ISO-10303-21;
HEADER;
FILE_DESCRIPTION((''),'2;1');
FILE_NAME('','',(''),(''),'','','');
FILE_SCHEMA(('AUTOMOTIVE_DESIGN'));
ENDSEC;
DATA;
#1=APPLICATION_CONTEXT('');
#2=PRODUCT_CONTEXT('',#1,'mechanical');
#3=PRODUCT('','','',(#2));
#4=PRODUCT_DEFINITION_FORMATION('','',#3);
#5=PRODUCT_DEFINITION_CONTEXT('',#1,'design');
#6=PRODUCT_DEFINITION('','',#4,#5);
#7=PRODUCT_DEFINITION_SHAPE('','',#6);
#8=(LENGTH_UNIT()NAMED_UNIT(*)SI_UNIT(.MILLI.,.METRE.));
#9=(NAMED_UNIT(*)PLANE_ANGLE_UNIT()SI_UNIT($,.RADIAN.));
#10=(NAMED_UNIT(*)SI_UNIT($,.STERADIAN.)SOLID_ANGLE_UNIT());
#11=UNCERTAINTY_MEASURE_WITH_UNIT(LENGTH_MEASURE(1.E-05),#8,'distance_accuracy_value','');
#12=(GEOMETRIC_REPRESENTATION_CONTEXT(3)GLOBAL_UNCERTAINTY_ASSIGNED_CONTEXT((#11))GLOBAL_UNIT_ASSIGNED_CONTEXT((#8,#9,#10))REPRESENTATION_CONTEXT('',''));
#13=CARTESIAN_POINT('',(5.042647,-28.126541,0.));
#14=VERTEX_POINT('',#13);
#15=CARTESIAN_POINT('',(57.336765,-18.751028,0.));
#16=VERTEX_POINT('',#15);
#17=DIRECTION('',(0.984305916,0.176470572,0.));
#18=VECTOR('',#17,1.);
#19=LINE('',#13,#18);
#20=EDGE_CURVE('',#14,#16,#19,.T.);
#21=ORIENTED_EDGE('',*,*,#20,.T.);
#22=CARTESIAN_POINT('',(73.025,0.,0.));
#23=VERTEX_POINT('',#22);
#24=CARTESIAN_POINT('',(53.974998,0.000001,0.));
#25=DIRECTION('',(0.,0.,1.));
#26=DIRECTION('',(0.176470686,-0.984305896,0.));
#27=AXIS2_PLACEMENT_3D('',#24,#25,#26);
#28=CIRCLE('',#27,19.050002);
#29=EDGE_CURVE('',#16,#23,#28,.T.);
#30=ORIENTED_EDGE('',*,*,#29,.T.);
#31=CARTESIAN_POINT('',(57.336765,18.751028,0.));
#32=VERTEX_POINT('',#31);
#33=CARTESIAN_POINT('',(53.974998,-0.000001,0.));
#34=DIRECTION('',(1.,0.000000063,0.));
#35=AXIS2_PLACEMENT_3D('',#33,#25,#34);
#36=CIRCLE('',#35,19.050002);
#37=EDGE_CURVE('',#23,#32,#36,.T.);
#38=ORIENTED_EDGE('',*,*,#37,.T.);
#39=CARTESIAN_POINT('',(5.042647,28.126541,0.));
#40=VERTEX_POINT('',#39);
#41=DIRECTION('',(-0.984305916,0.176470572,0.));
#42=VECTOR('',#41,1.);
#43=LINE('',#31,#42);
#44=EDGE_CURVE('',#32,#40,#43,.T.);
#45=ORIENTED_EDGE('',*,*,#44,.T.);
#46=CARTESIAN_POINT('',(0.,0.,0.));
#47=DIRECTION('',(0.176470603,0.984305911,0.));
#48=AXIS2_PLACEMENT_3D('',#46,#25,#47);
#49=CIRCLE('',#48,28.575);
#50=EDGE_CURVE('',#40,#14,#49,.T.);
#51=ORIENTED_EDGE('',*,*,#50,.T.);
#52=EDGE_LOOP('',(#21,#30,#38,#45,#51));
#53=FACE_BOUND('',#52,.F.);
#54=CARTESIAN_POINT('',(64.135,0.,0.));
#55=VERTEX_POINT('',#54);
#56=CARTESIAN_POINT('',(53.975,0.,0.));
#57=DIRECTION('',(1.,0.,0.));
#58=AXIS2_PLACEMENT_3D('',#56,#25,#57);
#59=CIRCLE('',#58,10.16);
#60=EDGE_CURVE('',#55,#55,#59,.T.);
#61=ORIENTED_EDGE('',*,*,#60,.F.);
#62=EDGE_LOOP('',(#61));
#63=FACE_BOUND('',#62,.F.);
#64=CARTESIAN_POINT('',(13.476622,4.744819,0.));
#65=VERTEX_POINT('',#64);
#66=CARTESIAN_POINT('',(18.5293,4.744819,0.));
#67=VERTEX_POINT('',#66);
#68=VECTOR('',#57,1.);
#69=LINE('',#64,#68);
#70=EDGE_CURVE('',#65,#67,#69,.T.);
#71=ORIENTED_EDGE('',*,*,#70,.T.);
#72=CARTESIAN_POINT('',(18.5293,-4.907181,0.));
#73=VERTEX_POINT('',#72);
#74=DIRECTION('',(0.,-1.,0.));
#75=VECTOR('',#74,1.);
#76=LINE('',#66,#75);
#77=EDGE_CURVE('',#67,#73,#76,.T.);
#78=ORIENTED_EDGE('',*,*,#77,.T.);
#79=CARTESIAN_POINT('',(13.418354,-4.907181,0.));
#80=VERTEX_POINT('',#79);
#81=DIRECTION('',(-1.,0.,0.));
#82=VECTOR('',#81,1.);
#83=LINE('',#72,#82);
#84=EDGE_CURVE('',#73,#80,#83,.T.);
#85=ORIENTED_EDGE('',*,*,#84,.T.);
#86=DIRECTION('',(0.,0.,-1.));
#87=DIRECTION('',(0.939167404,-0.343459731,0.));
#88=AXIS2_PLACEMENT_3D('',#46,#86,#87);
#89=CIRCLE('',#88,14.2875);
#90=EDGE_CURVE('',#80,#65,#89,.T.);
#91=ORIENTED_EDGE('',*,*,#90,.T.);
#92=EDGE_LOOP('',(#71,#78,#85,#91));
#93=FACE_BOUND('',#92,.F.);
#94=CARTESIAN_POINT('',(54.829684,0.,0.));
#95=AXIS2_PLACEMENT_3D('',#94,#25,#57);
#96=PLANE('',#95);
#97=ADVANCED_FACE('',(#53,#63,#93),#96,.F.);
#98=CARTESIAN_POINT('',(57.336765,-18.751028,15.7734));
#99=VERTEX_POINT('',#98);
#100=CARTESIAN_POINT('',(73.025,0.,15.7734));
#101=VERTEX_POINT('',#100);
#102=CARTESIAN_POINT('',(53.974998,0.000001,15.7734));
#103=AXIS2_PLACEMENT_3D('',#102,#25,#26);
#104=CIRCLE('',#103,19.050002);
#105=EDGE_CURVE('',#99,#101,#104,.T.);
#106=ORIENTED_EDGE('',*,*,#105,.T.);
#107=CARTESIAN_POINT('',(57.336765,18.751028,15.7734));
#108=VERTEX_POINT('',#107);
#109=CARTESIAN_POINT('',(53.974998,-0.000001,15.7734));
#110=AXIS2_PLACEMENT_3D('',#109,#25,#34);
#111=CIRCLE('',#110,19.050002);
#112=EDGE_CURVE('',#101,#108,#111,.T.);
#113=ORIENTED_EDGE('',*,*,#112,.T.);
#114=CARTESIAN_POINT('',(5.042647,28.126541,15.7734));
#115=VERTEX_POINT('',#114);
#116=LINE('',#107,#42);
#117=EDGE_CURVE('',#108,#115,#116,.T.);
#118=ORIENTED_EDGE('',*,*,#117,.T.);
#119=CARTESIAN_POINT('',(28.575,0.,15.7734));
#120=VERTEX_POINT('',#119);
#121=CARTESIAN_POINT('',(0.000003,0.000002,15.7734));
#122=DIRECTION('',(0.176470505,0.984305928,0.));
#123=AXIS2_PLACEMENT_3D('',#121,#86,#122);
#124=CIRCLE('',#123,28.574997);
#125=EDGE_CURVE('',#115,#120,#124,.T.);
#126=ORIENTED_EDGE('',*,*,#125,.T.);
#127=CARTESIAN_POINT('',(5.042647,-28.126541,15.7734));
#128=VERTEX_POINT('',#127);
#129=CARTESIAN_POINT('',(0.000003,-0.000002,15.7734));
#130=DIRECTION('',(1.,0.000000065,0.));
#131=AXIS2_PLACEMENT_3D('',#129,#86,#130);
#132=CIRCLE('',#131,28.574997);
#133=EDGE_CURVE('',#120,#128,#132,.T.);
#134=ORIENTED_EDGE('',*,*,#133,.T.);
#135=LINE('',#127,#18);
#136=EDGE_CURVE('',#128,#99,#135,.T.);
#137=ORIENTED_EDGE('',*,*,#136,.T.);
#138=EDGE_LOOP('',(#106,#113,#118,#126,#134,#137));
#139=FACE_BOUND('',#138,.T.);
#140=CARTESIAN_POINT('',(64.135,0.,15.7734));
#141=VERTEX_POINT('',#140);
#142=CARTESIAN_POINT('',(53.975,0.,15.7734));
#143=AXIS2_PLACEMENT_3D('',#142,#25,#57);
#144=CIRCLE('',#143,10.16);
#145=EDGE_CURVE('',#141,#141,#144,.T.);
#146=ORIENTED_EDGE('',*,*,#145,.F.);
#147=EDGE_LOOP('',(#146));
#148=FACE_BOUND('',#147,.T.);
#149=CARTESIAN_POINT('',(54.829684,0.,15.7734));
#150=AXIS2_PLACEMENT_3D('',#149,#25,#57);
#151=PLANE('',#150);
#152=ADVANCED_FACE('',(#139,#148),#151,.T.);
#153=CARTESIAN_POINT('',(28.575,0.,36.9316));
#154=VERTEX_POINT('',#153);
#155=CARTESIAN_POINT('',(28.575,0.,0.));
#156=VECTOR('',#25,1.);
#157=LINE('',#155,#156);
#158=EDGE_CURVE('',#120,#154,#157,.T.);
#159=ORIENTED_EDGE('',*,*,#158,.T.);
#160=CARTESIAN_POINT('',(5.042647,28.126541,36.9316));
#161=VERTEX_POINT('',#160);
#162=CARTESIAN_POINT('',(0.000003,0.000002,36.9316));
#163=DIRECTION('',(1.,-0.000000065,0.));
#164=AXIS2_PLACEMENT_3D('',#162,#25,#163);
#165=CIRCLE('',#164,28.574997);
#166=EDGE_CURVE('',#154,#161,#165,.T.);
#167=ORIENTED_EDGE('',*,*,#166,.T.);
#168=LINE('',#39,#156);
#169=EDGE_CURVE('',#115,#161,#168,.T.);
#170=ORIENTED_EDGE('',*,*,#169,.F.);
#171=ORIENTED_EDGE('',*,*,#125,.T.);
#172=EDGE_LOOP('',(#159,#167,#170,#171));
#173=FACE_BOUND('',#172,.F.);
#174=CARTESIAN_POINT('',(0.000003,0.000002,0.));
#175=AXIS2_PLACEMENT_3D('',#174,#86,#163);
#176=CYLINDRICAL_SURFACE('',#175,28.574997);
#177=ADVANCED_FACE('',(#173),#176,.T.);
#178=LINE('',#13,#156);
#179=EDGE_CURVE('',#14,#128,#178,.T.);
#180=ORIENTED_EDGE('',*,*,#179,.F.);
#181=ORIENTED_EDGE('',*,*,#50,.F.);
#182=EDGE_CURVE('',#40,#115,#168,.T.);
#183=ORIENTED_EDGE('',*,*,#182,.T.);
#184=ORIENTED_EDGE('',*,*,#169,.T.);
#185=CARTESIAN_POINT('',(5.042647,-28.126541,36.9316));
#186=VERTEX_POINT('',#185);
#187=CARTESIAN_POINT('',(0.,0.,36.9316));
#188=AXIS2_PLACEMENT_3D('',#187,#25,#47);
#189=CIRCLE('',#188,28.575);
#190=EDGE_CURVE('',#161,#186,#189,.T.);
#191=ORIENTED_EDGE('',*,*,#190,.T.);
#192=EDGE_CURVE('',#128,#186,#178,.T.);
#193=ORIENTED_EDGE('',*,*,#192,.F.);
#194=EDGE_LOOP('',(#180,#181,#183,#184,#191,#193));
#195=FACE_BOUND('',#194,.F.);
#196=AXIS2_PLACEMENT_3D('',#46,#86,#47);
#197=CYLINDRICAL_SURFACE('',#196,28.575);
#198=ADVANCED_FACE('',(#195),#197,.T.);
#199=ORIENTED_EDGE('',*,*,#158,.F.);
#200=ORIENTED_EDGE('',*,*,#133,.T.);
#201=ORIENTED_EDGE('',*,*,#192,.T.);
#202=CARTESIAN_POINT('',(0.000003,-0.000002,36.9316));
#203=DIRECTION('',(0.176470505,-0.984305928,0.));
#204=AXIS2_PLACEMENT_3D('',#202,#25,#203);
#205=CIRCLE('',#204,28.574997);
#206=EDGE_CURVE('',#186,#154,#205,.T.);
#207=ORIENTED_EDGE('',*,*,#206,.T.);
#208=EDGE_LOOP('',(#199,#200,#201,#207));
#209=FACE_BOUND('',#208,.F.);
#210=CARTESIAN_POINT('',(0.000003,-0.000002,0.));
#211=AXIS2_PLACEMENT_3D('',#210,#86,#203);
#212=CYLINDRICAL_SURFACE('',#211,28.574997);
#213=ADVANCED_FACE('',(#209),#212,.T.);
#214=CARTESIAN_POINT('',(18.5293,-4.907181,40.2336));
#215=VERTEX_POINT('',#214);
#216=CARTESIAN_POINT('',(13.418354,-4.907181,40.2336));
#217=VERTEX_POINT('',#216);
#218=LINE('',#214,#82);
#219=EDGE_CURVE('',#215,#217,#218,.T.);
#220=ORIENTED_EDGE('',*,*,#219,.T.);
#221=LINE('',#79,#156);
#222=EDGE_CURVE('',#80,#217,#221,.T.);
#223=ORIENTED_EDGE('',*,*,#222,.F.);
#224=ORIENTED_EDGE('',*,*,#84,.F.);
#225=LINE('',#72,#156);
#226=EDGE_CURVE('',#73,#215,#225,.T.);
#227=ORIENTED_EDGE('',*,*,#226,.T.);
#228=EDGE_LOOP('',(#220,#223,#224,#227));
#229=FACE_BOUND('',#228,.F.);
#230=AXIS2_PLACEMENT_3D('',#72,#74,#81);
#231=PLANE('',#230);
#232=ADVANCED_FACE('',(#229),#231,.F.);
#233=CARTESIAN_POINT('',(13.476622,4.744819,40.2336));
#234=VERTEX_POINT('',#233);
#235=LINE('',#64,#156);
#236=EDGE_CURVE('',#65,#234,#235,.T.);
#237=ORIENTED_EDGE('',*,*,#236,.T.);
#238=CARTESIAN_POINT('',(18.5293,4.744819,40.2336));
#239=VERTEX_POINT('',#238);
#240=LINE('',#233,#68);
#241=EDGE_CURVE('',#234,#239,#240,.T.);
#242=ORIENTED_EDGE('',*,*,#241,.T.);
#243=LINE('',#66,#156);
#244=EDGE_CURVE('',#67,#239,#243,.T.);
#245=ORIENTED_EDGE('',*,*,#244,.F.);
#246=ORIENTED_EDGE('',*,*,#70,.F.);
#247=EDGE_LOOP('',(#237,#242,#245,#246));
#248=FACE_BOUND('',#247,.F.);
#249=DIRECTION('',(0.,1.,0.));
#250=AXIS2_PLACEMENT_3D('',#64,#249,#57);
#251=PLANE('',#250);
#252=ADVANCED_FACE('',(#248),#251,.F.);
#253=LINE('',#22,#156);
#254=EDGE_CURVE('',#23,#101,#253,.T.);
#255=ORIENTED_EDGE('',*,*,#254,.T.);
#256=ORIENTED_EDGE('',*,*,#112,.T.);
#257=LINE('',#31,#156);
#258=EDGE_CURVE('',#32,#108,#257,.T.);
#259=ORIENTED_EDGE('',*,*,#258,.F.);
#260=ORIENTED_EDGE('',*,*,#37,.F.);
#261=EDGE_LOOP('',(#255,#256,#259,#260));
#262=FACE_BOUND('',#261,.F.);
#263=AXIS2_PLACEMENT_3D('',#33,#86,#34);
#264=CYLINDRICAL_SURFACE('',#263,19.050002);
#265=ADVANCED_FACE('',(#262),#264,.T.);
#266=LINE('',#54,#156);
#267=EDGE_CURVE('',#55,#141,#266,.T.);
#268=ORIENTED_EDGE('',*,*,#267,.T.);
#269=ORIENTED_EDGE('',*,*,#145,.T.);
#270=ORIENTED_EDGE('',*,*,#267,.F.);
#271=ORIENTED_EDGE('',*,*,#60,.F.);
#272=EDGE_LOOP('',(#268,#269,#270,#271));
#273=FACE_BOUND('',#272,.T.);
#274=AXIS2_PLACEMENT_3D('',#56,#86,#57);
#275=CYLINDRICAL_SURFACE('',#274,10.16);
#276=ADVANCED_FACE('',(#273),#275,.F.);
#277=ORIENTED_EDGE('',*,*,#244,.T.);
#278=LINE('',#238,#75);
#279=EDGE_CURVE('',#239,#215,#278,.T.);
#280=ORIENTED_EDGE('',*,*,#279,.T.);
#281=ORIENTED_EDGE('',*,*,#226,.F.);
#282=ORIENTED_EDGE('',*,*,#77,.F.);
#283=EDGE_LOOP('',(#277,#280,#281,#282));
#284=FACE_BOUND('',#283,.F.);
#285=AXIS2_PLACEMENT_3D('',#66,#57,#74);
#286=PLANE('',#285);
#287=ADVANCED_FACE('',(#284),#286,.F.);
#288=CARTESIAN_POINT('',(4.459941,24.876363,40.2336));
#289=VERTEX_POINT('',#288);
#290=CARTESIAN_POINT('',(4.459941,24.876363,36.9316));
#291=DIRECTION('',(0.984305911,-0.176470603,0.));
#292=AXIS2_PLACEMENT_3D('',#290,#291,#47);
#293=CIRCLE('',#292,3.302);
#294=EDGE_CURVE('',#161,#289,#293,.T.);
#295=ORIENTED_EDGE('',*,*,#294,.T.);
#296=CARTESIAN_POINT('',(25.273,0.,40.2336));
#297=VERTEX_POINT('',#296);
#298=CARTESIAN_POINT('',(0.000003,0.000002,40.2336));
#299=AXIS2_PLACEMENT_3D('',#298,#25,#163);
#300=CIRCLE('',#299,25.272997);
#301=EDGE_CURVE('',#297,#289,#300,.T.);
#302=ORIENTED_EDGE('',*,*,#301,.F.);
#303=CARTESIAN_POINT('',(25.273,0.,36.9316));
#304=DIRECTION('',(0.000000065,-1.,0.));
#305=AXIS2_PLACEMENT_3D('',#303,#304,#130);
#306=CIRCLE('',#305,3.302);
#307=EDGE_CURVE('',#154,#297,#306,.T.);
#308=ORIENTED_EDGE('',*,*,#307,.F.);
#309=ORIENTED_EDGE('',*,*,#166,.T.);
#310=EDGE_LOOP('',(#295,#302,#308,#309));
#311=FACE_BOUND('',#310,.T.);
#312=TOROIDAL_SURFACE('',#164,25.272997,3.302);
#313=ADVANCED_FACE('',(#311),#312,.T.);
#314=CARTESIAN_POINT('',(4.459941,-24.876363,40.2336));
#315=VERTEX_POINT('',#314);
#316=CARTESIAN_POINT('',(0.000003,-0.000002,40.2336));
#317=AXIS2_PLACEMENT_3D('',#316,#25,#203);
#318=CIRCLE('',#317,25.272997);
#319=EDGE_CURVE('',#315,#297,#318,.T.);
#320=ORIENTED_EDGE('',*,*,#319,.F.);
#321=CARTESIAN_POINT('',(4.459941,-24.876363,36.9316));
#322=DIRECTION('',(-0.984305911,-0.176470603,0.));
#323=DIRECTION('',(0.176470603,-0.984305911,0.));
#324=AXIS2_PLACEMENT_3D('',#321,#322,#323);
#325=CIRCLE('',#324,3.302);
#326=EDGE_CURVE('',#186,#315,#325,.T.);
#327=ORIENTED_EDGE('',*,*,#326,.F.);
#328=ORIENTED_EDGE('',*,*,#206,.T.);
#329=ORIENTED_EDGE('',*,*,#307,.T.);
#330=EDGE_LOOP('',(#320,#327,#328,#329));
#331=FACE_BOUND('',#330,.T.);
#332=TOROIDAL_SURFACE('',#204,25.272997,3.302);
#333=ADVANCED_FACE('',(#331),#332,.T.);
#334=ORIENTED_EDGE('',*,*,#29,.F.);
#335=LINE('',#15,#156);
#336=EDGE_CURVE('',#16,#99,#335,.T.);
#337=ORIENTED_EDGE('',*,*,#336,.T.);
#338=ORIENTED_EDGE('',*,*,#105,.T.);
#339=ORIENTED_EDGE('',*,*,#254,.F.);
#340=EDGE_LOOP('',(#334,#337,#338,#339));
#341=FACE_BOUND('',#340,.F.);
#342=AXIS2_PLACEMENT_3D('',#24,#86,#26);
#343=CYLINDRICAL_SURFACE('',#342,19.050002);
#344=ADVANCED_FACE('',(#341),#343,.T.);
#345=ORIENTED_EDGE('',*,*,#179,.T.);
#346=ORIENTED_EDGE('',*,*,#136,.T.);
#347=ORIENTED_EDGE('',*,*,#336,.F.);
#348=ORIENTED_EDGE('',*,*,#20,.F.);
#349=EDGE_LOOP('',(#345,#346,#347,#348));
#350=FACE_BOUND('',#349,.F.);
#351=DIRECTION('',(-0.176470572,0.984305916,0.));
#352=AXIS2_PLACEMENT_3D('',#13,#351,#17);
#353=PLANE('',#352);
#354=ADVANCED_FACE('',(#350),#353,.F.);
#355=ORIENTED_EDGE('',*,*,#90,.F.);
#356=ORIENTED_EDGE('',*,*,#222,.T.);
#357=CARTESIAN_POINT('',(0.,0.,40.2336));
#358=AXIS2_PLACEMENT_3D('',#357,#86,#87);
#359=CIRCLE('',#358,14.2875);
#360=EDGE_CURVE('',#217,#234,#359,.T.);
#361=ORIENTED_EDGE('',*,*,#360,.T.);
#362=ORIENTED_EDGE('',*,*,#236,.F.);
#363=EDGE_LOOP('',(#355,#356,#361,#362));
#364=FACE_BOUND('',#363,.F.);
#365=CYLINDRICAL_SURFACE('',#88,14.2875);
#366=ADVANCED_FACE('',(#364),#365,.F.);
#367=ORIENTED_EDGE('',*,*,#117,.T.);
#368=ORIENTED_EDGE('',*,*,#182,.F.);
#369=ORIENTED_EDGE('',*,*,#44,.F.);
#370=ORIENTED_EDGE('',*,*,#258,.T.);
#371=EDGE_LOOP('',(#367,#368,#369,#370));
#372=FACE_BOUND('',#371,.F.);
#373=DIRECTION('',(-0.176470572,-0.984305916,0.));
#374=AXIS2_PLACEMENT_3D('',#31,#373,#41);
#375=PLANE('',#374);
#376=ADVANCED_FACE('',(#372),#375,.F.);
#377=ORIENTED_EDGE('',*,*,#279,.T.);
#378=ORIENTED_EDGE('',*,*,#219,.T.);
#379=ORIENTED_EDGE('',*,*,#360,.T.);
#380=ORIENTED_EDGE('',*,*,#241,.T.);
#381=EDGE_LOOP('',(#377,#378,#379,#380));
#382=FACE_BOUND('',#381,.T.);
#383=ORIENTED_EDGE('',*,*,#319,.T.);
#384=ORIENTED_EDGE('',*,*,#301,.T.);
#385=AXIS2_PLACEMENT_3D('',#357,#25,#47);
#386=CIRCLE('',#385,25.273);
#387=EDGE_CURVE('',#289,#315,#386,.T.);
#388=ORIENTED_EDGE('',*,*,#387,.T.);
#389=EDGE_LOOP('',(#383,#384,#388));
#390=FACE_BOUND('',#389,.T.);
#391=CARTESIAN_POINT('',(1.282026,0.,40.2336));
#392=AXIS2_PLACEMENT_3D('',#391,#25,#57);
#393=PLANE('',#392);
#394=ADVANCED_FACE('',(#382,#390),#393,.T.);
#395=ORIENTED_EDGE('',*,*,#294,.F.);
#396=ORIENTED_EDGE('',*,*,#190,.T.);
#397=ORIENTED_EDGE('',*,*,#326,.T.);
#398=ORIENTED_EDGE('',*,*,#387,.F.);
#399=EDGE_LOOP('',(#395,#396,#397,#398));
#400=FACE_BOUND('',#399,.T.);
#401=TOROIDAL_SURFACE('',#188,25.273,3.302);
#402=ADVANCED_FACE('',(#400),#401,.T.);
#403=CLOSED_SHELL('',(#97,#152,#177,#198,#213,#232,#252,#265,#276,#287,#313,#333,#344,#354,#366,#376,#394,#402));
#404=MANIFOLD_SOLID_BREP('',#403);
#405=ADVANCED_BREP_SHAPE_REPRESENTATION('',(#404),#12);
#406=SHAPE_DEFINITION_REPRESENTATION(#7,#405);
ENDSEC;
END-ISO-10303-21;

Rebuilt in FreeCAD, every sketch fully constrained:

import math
import FreeCAD as App
import Part
import Sketcher

V = App.Vector
Q = App.Units.Quantity


def edges_at(feature, points):
    """Names of the edges that pass closest to the given points."""
    edges = feature.Shape.Edges
    near = lambda p: min(range(len(edges)), key=lambda i: edges[i].distToShape(Part.Vertex(*p))[0])
    return sorted({f"Edge{near(p) + 1}" for p in points})

doc = App.newDocument("Part")
body = doc.addObject("PartDesign::Body", "Body")

# Sketch on XY plane
sketch1 = body.newObject("Sketcher::SketchObject", "Sketch")
sketch1.AttachmentSupport = (doc.getObject("XY_Plane"), [""])
sketch1.MapMode = "FlatFace"
sketch1.addGeometry(Part.ArcOfCircle(Part.Circle(V(0.000003, -0.000002, 0), V(0, 0, 1), 28.574997), math.radians(-79.835756), math.radians(0.000004)), False)
sketch1.addGeometry(Part.ArcOfCircle(Part.Circle(V(0.000003, 0.000002, 0), V(0, 0, 1), 28.574997), math.radians(-0.000004), math.radians(79.835756)), False)
sketch1.addGeometry(Part.ArcOfCircle(Part.Circle(V(0, 0, 0), V(0, 0, 1), 28.575), math.radians(79.835751), math.radians(280.164249)), False)
sketch1.addGeometry(Part.LineSegment(V(18.5293, -4.907181, 0), V(13.418354, -4.907181, 0)), False)
sketch1.addGeometry(Part.ArcOfCircle(Part.Circle(V(0, 0, 0), V(0, 0, 1), 14.2875), math.radians(19.396033), math.radians(339.9122)), False)
sketch1.addGeometry(Part.LineSegment(V(13.476622, 4.744819, 0), V(18.5293, 4.744819, 0)), False)
sketch1.addGeometry(Part.LineSegment(V(18.5293, 4.744819, 0), V(18.5293, -4.907181, 0)), False)
sketch1.addConstraint(Sketcher.Constraint("Tangent", 0, 2, 1, 1))
sketch1.addConstraint(Sketcher.Constraint("Tangent", 1, 2, 2, 1))
sketch1.addConstraint(Sketcher.Constraint("Tangent", 2, 2, 0, 1))
sketch1.addConstraint(Sketcher.Constraint("Coincident", 3, 2, 4, 2))
sketch1.addConstraint(Sketcher.Constraint("Coincident", 4, 1, 5, 1))
sketch1.addConstraint(Sketcher.Constraint("Coincident", 5, 2, 6, 1))
sketch1.addConstraint(Sketcher.Constraint("Coincident", 6, 2, 3, 1))
sketch1.addConstraint(Sketcher.Constraint("Horizontal", 3))
sketch1.addConstraint(Sketcher.Constraint("Horizontal", 5))
sketch1.addConstraint(Sketcher.Constraint("Vertical", 6))
sketch1.addConstraint(Sketcher.Constraint("Coincident", 0, 3, -1, 1))
sketch1.addConstraint(Sketcher.Constraint("Coincident", 4, 3, -1, 1))
sketch1.addConstraint(Sketcher.Constraint("PointOnObject", 0, 2, -1))
sketch1.addConstraint(Sketcher.Constraint("Vertical", 1, 2, 2, 2))
sketch1.addConstraint(Sketcher.Constraint("Radius", 0, Q("1.1249999 in")))
sketch1.addConstraint(Sketcher.Constraint("Radius", 4, Q("0.5625 in")))
sketch1.addConstraint(Sketcher.Constraint("DistanceY", 6, 2, 6, 1, Q("0.38 in")))
sketch1.addConstraint(Sketcher.Constraint("DistanceX", -1, 1, 5, 2, Q("0.7295 in")))
sketch1.addConstraint(Sketcher.Constraint("DistanceX", 3, 2, 3, 1, Q("5.110946 mm")))
sketch1.addConstraint(Sketcher.Constraint("DistanceY", -1, 1, 1, 2, Q("28.126541 mm")))
pad1 = body.newObject("PartDesign::Pad", "Pad")
pad1.Profile = sketch1
pad1.Length = Q("1.584 in")

# Sketch on XY plane
sketch2 = body.newObject("Sketcher::SketchObject", "Sketch001")
sketch2.AttachmentSupport = (doc.getObject("XY_Plane"), [""])
sketch2.MapMode = "FlatFace"
sketch2.addGeometry(Part.ArcOfCircle(Part.Circle(V(53.974998, -0.000001, 0), V(0, 0, 1), 19.050002), math.radians(0.000004), math.radians(79.835746)), False)
sketch2.addGeometry(Part.LineSegment(V(57.336765, 18.751028, 0), V(5.042647, 28.126541, 0)), False)
sketch2.addGeometry(Part.ArcOfCircle(Part.Circle(V(0.000003, 0.000002, 0), V(0, 0, 1), 28.574997), math.radians(-0.000004), math.radians(79.835756)), False)
sketch2.addGeometry(Part.ArcOfCircle(Part.Circle(V(0.000003, -0.000002, 0), V(0, 0, 1), 28.574997), math.radians(-79.835756), math.radians(0.000004)), False)
sketch2.addGeometry(Part.LineSegment(V(5.042647, -28.126541, 0), V(57.336765, -18.751028, 0)), False)
sketch2.addGeometry(Part.ArcOfCircle(Part.Circle(V(53.974998, 0.000001, 0), V(0, 0, 1), 19.050002), math.radians(-79.835746), math.radians(-0.000004)), False)
sketch2.addGeometry(Part.Circle(V(53.975, 0, 0), V(0, 0, 1), 10.16), False)
sketch2.addConstraint(Sketcher.Constraint("Tangent", 0, 2, 1, 1))
sketch2.addConstraint(Sketcher.Constraint("Tangent", 1, 2, 2, 2))
sketch2.addConstraint(Sketcher.Constraint("Tangent", 2, 1, 3, 2))
sketch2.addConstraint(Sketcher.Constraint("Tangent", 3, 1, 4, 1))
sketch2.addConstraint(Sketcher.Constraint("Tangent", 4, 2, 5, 1))
sketch2.addConstraint(Sketcher.Constraint("Tangent", 5, 2, 0, 1))
sketch2.addConstraint(Sketcher.Constraint("Coincident", 2, 3, -1, 1))
sketch2.addConstraint(Sketcher.Constraint("Coincident", 6, 3, 0, 3))
sketch2.addConstraint(Sketcher.Constraint("Equal", 2, 3))
sketch2.addConstraint(Sketcher.Constraint("Equal", 0, 5))
sketch2.addConstraint(Sketcher.Constraint("PointOnObject", 0, 3, -1))
sketch2.addConstraint(Sketcher.Constraint("PointOnObject", 2, 1, -1))
sketch2.addConstraint(Sketcher.Constraint("PointOnObject", 5, 2, -1))
sketch2.addConstraint(Sketcher.Constraint("Diameter", 6, Q("0.8 in")))
sketch2.addConstraint(Sketcher.Constraint("Radius", 0, Q("0.7500001 in")))
sketch2.addConstraint(Sketcher.Constraint("Radius", 2, Q("1.1249999 in")))
sketch2.addConstraint(Sketcher.Constraint("DistanceX", 2, 1, 0, 3, Q("0.9999999 in")))
pad2 = body.newObject("PartDesign::Pad", "Pad001")
pad2.Profile = sketch2
pad2.Length = Q("0.621 in")
doc.recompute()

fillet = body.newObject("PartDesign::Fillet", "Fillet")
fillet.Base = (pad2, edges_at(pad2, [(-28.575, 0, 40.234)]))
fillet.Radius = Q("0.13 in")

doc.recompute()
